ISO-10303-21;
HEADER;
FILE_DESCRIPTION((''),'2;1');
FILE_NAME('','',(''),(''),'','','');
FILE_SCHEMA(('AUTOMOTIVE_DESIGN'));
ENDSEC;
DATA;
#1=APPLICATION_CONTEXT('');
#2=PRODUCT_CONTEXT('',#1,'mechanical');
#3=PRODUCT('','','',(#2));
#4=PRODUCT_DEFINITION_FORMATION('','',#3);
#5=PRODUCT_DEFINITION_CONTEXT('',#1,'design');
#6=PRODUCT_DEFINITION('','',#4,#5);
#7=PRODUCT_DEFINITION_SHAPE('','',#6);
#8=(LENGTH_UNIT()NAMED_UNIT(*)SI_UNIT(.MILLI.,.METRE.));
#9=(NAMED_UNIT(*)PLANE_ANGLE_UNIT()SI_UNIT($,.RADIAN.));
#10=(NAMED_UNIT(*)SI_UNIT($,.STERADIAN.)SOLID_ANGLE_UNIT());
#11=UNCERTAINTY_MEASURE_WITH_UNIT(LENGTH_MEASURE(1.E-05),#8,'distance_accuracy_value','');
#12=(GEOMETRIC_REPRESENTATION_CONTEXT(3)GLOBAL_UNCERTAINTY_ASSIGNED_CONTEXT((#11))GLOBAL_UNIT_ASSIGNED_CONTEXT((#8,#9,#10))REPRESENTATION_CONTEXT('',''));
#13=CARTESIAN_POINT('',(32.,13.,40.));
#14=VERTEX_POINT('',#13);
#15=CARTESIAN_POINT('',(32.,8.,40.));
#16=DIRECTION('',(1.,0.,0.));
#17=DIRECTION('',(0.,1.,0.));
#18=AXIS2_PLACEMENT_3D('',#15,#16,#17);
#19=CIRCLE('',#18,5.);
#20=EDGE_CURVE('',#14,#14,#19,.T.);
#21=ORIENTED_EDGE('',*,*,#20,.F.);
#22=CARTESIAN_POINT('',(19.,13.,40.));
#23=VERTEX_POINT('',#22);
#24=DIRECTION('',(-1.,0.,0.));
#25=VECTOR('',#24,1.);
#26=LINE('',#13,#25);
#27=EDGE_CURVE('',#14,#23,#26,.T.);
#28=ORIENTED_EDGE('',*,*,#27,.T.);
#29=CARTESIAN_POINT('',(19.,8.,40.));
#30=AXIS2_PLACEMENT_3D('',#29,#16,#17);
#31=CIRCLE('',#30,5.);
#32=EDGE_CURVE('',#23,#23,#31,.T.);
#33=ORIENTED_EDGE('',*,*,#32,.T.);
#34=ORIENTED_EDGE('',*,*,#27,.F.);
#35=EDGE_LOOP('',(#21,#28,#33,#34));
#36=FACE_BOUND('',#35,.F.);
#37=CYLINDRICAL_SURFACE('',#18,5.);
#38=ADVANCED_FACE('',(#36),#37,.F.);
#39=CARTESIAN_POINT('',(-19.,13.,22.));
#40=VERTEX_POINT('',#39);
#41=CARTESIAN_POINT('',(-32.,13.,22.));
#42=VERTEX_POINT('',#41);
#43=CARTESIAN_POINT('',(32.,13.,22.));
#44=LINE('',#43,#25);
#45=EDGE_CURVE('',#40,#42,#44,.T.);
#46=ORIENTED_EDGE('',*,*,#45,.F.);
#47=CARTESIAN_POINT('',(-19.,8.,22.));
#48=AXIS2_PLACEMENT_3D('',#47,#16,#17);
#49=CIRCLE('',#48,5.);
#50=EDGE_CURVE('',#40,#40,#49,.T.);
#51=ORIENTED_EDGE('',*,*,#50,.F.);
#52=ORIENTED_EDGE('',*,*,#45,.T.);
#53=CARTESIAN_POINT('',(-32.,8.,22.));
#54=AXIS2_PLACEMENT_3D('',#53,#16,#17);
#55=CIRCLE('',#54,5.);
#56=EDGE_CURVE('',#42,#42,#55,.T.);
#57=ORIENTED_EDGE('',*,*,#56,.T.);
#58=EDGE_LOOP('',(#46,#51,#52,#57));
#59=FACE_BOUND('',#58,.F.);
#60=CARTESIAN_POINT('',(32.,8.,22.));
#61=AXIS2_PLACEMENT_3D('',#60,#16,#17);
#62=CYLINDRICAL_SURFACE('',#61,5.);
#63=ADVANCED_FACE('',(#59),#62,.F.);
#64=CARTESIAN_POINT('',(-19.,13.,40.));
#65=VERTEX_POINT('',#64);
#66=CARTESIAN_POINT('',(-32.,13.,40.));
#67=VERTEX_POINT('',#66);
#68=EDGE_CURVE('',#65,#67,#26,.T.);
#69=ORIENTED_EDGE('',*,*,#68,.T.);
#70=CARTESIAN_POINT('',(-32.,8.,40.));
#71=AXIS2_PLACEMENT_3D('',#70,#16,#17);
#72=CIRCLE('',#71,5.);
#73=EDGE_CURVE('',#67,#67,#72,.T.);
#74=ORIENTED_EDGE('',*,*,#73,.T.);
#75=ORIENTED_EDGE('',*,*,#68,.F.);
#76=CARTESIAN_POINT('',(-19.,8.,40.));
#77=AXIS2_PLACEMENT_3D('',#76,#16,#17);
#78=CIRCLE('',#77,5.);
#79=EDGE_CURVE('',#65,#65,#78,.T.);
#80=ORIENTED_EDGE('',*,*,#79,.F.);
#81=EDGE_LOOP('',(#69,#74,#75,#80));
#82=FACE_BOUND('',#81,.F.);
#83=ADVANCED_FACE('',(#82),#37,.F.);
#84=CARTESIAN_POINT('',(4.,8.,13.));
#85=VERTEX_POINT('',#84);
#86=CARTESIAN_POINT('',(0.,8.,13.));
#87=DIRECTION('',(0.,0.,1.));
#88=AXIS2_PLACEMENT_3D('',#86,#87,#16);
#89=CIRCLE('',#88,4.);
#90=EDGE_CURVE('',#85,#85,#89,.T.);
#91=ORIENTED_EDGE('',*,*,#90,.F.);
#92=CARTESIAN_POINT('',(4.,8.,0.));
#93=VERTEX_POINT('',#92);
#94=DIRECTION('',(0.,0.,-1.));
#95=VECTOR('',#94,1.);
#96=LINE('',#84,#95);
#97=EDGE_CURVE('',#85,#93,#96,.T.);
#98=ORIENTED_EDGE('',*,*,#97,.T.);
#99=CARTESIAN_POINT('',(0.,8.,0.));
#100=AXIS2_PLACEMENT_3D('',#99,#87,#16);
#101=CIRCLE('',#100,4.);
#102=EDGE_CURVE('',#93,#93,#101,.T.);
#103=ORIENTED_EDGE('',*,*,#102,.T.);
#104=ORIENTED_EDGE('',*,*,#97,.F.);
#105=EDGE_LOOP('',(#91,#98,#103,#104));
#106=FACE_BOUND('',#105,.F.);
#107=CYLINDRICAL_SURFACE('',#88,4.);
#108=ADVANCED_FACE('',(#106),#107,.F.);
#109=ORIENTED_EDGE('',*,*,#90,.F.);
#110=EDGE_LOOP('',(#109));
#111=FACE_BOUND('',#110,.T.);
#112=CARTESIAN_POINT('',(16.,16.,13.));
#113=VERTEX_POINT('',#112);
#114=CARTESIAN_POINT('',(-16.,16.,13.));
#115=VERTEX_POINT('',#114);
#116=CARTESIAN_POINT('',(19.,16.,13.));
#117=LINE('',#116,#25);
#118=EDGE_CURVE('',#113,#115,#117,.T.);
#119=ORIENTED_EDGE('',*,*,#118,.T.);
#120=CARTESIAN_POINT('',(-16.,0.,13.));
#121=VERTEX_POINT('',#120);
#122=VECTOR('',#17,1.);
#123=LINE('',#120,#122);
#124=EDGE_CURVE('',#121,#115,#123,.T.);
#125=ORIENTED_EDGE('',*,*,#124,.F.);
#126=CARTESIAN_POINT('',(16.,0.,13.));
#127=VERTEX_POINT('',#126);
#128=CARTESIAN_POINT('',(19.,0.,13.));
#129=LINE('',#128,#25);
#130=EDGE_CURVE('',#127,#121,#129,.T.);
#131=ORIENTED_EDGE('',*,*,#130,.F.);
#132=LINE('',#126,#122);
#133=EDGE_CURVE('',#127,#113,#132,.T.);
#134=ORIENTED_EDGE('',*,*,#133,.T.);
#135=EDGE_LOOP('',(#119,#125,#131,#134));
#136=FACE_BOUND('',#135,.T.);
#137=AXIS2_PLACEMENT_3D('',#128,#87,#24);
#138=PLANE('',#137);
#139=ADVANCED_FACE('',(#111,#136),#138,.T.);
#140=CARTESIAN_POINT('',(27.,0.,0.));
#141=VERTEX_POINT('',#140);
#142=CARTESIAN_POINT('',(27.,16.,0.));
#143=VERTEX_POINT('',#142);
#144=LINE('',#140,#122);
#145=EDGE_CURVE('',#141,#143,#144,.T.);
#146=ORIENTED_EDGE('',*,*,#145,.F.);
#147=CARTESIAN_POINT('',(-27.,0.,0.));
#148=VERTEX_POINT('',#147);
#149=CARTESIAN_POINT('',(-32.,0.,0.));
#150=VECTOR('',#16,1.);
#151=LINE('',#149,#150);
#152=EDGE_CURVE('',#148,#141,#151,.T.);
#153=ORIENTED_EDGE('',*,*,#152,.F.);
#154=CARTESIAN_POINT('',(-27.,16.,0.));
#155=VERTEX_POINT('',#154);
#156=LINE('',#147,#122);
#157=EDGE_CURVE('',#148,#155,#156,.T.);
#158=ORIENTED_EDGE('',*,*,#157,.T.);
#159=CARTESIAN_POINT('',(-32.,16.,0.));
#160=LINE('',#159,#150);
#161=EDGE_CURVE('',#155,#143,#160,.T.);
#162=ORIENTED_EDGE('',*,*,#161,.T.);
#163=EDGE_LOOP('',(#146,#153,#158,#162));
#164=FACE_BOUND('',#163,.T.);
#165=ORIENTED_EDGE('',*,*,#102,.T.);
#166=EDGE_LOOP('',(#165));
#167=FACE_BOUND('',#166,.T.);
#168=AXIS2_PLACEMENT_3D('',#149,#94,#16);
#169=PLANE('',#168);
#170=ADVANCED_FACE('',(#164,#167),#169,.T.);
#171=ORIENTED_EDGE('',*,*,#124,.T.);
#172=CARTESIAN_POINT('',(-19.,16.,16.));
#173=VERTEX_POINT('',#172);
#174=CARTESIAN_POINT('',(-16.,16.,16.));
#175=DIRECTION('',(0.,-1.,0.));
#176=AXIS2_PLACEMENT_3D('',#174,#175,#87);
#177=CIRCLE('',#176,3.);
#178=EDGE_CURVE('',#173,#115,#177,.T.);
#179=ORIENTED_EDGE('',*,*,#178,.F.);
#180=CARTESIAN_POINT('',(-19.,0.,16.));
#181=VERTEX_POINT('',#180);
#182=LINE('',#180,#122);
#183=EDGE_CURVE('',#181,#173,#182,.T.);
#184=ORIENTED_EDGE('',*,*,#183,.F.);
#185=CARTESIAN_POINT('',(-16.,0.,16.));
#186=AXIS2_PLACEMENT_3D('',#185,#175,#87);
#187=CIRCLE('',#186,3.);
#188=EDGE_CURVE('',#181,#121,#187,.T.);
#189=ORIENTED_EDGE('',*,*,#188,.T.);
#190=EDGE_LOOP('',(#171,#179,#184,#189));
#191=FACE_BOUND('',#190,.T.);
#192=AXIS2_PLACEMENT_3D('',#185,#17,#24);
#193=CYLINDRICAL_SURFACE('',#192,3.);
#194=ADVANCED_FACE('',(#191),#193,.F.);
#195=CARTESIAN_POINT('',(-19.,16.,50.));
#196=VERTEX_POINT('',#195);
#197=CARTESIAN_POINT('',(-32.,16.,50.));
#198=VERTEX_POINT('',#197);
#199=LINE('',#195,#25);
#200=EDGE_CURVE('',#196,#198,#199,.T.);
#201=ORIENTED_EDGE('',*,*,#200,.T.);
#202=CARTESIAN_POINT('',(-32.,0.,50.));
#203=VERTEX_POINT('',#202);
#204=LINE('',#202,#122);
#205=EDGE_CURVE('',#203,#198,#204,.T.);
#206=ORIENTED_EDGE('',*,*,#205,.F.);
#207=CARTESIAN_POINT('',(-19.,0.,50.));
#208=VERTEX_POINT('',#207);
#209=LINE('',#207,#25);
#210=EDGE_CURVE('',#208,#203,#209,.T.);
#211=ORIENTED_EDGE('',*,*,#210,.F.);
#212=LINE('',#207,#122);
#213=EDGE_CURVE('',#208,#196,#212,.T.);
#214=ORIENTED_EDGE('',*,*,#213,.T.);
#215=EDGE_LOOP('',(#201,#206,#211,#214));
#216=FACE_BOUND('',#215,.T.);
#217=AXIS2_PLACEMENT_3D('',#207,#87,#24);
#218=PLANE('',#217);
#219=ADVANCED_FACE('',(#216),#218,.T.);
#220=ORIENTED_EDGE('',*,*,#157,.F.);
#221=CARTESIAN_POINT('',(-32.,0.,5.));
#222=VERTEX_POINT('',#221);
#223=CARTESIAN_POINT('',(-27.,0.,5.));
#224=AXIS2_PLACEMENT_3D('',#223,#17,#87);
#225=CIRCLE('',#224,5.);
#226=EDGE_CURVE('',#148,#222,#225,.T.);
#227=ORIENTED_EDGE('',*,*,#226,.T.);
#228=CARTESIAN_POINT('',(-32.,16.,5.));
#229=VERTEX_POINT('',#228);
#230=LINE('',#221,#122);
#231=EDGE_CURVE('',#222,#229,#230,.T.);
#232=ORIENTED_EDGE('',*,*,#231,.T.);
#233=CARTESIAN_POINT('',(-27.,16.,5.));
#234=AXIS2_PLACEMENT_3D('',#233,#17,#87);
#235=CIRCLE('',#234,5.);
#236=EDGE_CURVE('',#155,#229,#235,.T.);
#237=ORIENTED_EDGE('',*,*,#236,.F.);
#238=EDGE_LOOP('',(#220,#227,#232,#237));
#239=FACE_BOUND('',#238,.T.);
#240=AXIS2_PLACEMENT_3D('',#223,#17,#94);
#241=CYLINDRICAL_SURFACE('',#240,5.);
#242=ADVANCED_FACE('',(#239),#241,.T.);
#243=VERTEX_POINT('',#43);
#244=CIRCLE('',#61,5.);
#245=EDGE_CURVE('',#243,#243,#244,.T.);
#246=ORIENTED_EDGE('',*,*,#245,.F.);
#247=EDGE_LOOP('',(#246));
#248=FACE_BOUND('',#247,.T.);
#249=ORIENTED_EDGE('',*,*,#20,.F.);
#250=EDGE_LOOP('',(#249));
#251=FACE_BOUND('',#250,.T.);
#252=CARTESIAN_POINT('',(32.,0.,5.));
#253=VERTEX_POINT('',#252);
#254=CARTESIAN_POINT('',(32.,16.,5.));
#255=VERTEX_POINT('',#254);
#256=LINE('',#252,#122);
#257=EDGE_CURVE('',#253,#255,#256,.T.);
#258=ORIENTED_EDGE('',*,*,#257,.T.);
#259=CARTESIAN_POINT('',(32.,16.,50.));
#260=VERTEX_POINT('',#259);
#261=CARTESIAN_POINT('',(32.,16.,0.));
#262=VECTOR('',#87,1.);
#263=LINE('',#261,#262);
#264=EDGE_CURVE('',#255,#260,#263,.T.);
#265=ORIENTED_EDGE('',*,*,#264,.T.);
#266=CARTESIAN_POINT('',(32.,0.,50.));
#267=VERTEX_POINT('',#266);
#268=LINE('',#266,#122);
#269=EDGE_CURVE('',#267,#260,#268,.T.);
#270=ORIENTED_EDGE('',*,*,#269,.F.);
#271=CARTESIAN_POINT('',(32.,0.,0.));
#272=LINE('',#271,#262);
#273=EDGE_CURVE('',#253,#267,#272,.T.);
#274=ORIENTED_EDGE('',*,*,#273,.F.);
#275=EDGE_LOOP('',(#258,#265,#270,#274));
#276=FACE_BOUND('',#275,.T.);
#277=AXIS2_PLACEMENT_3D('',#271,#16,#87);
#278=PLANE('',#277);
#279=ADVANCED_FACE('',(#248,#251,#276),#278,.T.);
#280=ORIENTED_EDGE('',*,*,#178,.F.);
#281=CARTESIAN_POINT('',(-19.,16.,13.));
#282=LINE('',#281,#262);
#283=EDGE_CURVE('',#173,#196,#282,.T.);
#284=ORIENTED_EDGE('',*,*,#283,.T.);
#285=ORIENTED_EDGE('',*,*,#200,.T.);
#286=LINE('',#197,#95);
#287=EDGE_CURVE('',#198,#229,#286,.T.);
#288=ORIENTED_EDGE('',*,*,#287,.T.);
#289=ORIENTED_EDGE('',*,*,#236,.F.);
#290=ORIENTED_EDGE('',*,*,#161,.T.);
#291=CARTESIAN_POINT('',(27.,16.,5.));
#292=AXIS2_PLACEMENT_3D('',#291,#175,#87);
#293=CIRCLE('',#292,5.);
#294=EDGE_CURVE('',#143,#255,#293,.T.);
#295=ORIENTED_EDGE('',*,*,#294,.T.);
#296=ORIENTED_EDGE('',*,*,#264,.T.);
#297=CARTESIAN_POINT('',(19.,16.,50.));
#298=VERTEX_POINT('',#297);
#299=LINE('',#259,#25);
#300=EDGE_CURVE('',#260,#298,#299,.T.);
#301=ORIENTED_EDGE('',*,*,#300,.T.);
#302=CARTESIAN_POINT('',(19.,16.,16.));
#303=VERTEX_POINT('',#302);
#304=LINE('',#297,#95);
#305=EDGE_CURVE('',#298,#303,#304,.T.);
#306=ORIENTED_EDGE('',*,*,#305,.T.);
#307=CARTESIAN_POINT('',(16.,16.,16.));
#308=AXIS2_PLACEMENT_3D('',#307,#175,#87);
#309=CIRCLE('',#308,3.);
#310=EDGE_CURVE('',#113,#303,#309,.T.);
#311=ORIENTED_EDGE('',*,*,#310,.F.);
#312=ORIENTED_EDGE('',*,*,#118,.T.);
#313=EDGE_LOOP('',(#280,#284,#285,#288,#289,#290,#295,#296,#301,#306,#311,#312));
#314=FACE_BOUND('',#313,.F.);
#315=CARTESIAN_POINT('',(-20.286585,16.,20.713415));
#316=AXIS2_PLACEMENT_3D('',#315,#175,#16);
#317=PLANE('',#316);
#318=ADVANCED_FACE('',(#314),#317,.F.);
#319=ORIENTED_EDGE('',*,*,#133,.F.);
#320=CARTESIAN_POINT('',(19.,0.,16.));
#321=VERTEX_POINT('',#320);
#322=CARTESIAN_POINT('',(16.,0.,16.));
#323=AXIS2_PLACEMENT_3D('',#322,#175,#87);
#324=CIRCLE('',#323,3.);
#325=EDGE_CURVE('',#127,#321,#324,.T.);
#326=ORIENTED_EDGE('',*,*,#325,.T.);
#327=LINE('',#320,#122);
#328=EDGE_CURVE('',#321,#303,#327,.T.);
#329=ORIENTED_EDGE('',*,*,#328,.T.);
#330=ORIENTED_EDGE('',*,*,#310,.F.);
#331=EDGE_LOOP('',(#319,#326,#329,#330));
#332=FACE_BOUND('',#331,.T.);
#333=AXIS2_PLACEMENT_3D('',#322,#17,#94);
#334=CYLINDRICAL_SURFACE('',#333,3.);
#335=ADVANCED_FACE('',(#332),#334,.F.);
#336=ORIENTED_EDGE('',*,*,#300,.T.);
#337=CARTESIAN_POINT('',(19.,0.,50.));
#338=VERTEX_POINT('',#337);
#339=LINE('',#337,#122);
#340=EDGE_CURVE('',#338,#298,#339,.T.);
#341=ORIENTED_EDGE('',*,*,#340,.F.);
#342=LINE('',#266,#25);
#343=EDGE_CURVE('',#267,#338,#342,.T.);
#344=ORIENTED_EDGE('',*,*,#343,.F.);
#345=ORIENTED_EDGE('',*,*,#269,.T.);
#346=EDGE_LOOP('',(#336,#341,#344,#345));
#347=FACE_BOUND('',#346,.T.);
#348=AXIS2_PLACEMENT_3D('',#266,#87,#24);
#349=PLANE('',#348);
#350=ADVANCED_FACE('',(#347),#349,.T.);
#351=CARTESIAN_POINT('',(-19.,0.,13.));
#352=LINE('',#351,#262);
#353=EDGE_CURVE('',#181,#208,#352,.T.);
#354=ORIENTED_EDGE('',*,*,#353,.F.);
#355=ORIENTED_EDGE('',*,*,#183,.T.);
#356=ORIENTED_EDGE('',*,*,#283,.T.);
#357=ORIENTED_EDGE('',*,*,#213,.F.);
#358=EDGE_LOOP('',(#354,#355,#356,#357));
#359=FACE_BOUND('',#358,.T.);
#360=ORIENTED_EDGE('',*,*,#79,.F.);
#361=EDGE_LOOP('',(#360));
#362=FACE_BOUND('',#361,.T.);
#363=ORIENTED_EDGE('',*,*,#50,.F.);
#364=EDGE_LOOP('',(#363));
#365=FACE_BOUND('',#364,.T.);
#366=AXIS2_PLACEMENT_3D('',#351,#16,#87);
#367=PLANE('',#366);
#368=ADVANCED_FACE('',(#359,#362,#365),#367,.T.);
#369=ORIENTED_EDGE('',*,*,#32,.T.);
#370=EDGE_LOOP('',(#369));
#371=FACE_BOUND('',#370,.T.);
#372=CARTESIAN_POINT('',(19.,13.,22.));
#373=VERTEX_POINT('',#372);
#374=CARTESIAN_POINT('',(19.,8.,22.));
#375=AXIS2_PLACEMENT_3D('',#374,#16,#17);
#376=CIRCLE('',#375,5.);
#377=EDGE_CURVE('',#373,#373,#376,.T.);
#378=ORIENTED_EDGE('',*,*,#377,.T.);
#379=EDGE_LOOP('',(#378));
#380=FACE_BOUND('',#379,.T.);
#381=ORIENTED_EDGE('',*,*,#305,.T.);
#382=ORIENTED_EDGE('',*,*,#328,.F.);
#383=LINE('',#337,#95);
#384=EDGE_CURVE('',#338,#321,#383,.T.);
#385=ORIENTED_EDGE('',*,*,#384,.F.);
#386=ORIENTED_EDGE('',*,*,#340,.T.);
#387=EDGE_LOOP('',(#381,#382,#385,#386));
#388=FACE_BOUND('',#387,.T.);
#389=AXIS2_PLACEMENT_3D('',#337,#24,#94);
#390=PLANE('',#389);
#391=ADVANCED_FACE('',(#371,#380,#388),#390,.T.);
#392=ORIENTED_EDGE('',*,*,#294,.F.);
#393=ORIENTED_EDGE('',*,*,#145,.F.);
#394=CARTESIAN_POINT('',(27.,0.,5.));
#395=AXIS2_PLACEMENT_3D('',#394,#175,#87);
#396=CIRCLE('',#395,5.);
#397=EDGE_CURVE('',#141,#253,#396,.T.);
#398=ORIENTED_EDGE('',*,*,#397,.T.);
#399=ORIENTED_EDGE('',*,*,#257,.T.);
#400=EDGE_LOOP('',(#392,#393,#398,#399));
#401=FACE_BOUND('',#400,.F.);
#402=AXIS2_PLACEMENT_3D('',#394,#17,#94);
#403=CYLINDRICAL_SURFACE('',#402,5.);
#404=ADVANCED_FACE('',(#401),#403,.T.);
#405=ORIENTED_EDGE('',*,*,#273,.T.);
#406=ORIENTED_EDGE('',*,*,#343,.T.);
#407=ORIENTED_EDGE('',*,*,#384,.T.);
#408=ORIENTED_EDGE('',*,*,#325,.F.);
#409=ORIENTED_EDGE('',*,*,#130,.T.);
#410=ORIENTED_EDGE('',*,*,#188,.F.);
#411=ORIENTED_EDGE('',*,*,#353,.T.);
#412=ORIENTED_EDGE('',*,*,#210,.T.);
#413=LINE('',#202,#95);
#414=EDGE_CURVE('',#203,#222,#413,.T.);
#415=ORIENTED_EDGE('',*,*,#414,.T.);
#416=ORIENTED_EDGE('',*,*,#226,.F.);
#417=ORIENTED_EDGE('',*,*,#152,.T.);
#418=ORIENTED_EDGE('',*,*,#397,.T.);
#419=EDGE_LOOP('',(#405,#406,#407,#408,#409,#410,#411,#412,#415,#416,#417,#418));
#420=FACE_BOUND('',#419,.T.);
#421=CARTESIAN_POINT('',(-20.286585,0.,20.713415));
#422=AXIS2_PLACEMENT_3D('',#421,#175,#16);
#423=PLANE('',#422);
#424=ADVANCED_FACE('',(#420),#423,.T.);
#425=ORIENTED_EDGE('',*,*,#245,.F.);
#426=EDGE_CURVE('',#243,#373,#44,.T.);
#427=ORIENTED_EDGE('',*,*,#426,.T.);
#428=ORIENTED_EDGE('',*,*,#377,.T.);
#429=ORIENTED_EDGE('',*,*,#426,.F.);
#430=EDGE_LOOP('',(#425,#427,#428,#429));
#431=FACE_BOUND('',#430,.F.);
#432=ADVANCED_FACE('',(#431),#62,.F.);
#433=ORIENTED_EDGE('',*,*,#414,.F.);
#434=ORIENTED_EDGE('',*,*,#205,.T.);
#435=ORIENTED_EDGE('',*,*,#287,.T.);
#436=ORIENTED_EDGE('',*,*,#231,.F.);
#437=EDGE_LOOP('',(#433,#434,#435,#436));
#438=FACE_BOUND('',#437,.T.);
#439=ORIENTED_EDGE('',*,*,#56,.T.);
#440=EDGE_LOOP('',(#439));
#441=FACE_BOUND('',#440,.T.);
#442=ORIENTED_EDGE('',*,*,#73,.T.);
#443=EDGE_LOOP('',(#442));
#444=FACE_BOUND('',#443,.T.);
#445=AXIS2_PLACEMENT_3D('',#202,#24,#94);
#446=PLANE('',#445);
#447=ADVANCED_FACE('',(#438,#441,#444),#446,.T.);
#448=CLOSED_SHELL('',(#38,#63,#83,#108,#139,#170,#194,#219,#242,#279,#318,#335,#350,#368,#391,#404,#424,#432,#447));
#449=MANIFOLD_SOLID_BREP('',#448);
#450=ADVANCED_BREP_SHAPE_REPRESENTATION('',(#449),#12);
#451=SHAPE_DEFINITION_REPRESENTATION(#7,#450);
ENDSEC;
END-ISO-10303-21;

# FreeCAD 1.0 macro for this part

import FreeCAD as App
import Part
import Sketcher

V = App.Vector
Q = App.Units.Quantity


def edges_at(feature, points):
    """Names of the edges that pass closest to the given points."""
    edges = feature.Shape.Edges
    near = lambda p: min(range(len(edges)), key=lambda i: edges[i].distToShape(Part.Vertex(*p))[0])
    return sorted({f"Edge{near(p) + 1}" for p in points})


def add_polygon(sketch, points):
    """Adds a closed chain of lines whose ends are joined by coincident constraints."""
    first, n = sketch.GeometryCount, len(points)
    for a, b in zip(points, points[1:] + points[:1]):
        sketch.addGeometry(Part.LineSegment(App.Vector(*a, 0), App.Vector(*b, 0)), False)
    for i in range(n):
        sketch.addConstraint(Sketcher.Constraint("Coincident", first + i, 2, first + (i + 1) % n, 1))

doc = App.newDocument("Part")
params = doc.addObject("Spreadsheet::Sheet", "Params")
for row, (alias, value) in enumerate([
    ("sketch1_width", "64 mm"),
    ("sketch1_width2", "13 mm"),
    ("sketch1_height", "50 mm"),
    ("sketch1_height2", "37 mm"),
    ("pad1_length", "16 mm"),
    ("sketch2_diameter", "8 mm"),
    ("pocket1_length", "13 mm"),
    ("sketch3_diameter", "10 mm"),
    ("pocket2_length", "65 mm"),
    ("fillet_radius", "5 mm"),
    ("fillet2_radius", "5 mm"),
    ("fillet3_radius", "3 mm"),
    ("fillet4_radius", "3 mm"),
], start=1):
    params.set(f"A{row}", alias)
    params.set(f"B{row}", "=" + value)
    params.setAlias(f"B{row}", alias)

body = doc.addObject("PartDesign::Body", "Body")

sketch1 = body.newObject("Sketcher::SketchObject", "Sketch")
sketch1.AttachmentSupport = (doc.getObject("XZ_Plane"), [""])
sketch1.MapMode = "FlatFace"
add_polygon(sketch1, [(-32, 0), (32, 0), (32, 50), (19, 50), (19, 13), (-19, 13), (-19, 50), (-32, 50)])
sketch1.addConstraint(Sketcher.Constraint("Horizontal", 0))
sketch1.addConstraint(Sketcher.Constraint("Vertical", 1))
sketch1.addConstraint(Sketcher.Constraint("Horizontal", 2))
sketch1.addConstraint(Sketcher.Constraint("Vertical", 3))
sketch1.addConstraint(Sketcher.Constraint("Horizontal", 4))
sketch1.addConstraint(Sketcher.Constraint("Vertical", 5))
sketch1.addConstraint(Sketcher.Constraint("Horizontal", 6))
sketch1.addConstraint(Sketcher.Constraint("Vertical", 7))
sketch1.addConstraint(Sketcher.Constraint("Symmetric", 0, 2, 7, 2, -1, 1))
sketch1.addConstraint(Sketcher.Constraint("Symmetric", 2, 2, 5, 2, -2))
sketch1.addConstraint(Sketcher.Constraint("DistanceX", 0, 1, 0, 2, Q("64 mm")))
sketch1.addConstraint(Sketcher.Constraint("DistanceX", 2, 2, 2, 1, Q("13 mm")))
sketch1.addConstraint(Sketcher.Constraint("DistanceY", 1, 1, 1, 2, Q("50 mm")))
sketch1.addConstraint(Sketcher.Constraint("DistanceY", 3, 2, 3, 1, Q("37 mm")))
sketch1.setExpression("Constraints[18]", "Params.sketch1_width")
sketch1.setExpression("Constraints[19]", "Params.sketch1_width2")
sketch1.setExpression("Constraints[20]", "Params.sketch1_height")
sketch1.setExpression("Constraints[21]", "Params.sketch1_height2")
pad1 = body.newObject("PartDesign::Pad", "Pad")
pad1.Profile = sketch1
pad1.setExpression("Length", "Params.pad1_length")
pad1.Reversed = True

sketch2 = body.newObject("Sketcher::SketchObject", "Sketch001")
sketch2.AttachmentSupport = (doc.getObject("XY_Plane"), [""])
sketch2.MapMode = "FlatFace"
sketch2.AttachmentOffset = App.Placement(V(0, 0, 13), App.Rotation())
sketch2.addGeometry(Part.Circle(V(0, 8, 0), V(0, 0, 1), 4), False)
sketch2.addConstraint(Sketcher.Constraint("PointOnObject", 0, 3, -2))
sketch2.addConstraint(Sketcher.Constraint("Diameter", 0, Q("8 mm")))
sketch2.addConstraint(Sketcher.Constraint("DistanceY", -1, 1, 0, 3, Q("8 mm")))
sketch2.setExpression("Constraints[1]", "Params.sketch2_diameter")
pocket1 = body.newObject("PartDesign::Pocket", "Pocket")
pocket1.Profile = sketch2
pocket1.setExpression("Length", "Params.pocket1_length")

sketch3 = body.newObject("Sketcher::SketchObject", "Sketch002")
sketch3.AttachmentSupport = (doc.getObject("YZ_Plane"), [""])
sketch3.MapMode = "FlatFace"
sketch3.AttachmentOffset = App.Placement(V(0, 0, 32), App.Rotation())
sketch3.addGeometry(Part.Circle(V(8, 22, 0), V(0, 0, 1), 5), False)
sketch3.addGeometry(Part.Circle(V(8, 40, 0), V(0, 0, 1), 5), False)
sketch3.addConstraint(Sketcher.Constraint("Equal", 0, 1))
sketch3.addConstraint(Sketcher.Constraint("Vertical", 0, 3, 1, 3))
sketch3.addConstraint(Sketcher.Constraint("Diameter", 0, Q("10 mm")))
sketch3.addConstraint(Sketcher.Constraint("DistanceX", -1, 1, 0, 3, Q("8 mm")))
sketch3.addConstraint(Sketcher.Constraint("DistanceY", -1, 1, 0, 3, Q("22 mm")))
sketch3.addConstraint(Sketcher.Constraint("DistanceY", -1, 1, 1, 3, Q("40 mm")))
sketch3.setExpression("Constraints[2]", "Params.sketch3_diameter")
pocket2 = body.newObject("PartDesign::Pocket", "Pocket001")
pocket2.Profile = sketch3
pocket2.setExpression("Length", "Params.pocket2_length")
doc.recompute()

fillet = body.newObject("PartDesign::Fillet", "Fillet")
fillet.Base = (pocket2, edges_at(pocket2, [(32, 8, 0)]))
fillet.setExpression("Radius", "Params.fillet_radius")
doc.recompute()

fillet2 = body.newObject("PartDesign::Fillet", "Fillet001")
fillet2.Base = (fillet, edges_at(fillet, [(-32, 8, 0)]))
fillet2.setExpression("Radius", "Params.fillet2_radius")
doc.recompute()

fillet3 = body.newObject("PartDesign::Fillet", "Fillet002")
fillet3.Base = (fillet2, edges_at(fillet2, [(-19, 8, 13)]))
fillet3.setExpression("Radius", "Params.fillet3_radius")
doc.recompute()

fillet4 = body.newObject("PartDesign::Fillet", "Fillet003")
fillet4.Base = (fillet3, edges_at(fillet3, [(19, 8, 13)]))
fillet4.setExpression("Radius", "Params.fillet4_radius")

doc.recompute()
